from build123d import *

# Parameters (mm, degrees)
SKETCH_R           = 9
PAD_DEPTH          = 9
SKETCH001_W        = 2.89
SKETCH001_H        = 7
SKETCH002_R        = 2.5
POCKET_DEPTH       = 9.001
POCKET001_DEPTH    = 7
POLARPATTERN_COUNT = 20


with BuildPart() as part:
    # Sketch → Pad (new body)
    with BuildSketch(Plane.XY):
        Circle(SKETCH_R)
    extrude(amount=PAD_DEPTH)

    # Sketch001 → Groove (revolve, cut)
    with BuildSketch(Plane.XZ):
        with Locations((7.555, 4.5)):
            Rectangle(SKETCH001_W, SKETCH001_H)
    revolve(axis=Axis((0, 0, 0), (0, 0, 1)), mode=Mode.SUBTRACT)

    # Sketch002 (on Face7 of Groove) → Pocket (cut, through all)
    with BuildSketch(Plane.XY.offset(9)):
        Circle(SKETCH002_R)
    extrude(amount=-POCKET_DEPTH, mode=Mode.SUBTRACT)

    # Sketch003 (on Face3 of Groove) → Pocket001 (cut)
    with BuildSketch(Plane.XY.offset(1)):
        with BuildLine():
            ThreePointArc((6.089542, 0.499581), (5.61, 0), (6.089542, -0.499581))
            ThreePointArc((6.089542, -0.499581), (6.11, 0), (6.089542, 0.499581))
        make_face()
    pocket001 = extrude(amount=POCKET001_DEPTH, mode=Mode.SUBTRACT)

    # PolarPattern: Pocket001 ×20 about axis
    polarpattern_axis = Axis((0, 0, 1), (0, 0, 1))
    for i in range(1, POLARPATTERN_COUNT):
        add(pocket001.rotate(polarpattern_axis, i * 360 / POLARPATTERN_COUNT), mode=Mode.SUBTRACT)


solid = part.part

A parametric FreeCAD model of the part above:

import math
import FreeCAD as App
import Part
import Sketcher

V = App.Vector
Q = App.Units.Quantity


def add_polygon(sketch, points):
    """Adds a closed chain of lines whose ends are joined by coincident constraints."""
    first, n = sketch.GeometryCount, len(points)
    for a, b in zip(points, points[1:] + points[:1]):
        sketch.addGeometry(Part.LineSegment(App.Vector(*a, 0), App.Vector(*b, 0)), False)
    for i in range(n):
        sketch.addConstraint(Sketcher.Constraint("Coincident", first + i, 2, first + (i + 1) % n, 1))

doc = App.newDocument("Part")
body = doc.addObject("PartDesign::Body", "Body")

sketch1 = body.newObject("Sketcher::SketchObject", "Sketch")
sketch1.AttachmentSupport = (doc.getObject("XY_Plane"), [""])
sketch1.MapMode = "FlatFace"
sketch1.addGeometry(Part.Circle(V(0, 0, 0), V(0, 0, 1), 9), False)
sketch1.addConstraint(Sketcher.Constraint("Coincident", 0, 3, -1, 1))
sketch1.addConstraint(Sketcher.Constraint("Diameter", 0, Q("18 mm")))
pad1 = body.newObject("PartDesign::Pad", "Pad")
pad1.Profile = sketch1
pad1.Length = 9

sketch2 = body.newObject("Sketcher::SketchObject", "Sketch001")
sketch2.AttachmentSupport = (doc.getObject("XZ_Plane"), [""])
sketch2.MapMode = "FlatFace"
add_polygon(sketch2, [(6.11, 8), (6.11, 1), (9, 1), (9, 8)])
sketch2.addConstraint(Sketcher.Constraint("Vertical", 0))
sketch2.addConstraint(Sketcher.Constraint("Horizontal", 1))
sketch2.addConstraint(Sketcher.Constraint("Vertical", 2))
sketch2.addConstraint(Sketcher.Constraint("Horizontal", 3))
sketch2.addConstraint(Sketcher.Constraint("DistanceY", 0, 2, 0, 1, Q("7 mm")))
sketch2.addConstraint(Sketcher.Constraint("DistanceY", -1, 1, 0, 2, Q("1 mm")))
sketch2.addConstraint(Sketcher.Constraint("DistanceX", -1, 1, 1, 2, Q("9 mm")))
sketch2.addConstraint(Sketcher.Constraint("DistanceX", 1, 1, 1, 2, Q("2.89 mm")))
groove = body.newObject("PartDesign::Groove", "Groove")
groove.Profile = sketch2
groove.ReferenceAxis = (sketch2, ["V_Axis"])
groove.Angle = 360

sketch3 = body.newObject("Sketcher::SketchObject", "Sketch002")
sketch3.AttachmentSupport = (doc.getObject("XY_Plane"), [""])
sketch3.MapMode = "FlatFace"
sketch3.AttachmentOffset = App.Placement(V(0, 0, 9), App.Rotation())
sketch3.addGeometry(Part.Circle(V(0, 0, 0), V(0, 0, 1), 2.5), False)
sketch3.addConstraint(Sketcher.Constraint("Coincident", 0, 3, -1, 1))
sketch3.addConstraint(Sketcher.Constraint("Diameter", 0, Q("5 mm")))
pocket1 = body.newObject("PartDesign::Pocket", "Pocket")
pocket1.Profile = sketch3
pocket1.Type = "ThroughAll"

sketch4 = body.newObject("Sketcher::SketchObject", "Sketch003")
sketch4.AttachmentSupport = (doc.getObject("XY_Plane"), [""])
sketch4.MapMode = "FlatFace"
sketch4.AttachmentOffset = App.Placement(V(0, 0, 1), App.Rotation())
sketch4.addGeometry(Part.ArcOfCircle(Part.Circle(V(6.11, 0, 0), V(0, 0, 1), 0.5), math.radians(92.344935), math.radians(267.655065)), False)
sketch4.addGeometry(Part.ArcOfCircle(Part.Circle(V(-0.000072, 0, 0), V(0, 0, 1), 6.110072), math.radians(-4.68994), math.radians(4.68994)), False)
sketch4.addConstraint(Sketcher.Constraint("Coincident", 0, 1, 1, 2))
sketch4.addConstraint(Sketcher.Constraint("Coincident", 1, 1, 0, 2))
sketch4.addConstraint(Sketcher.Constraint("Symmetric", 0, 1, 1, 1, -1))
sketch4.addConstraint(Sketcher.Constraint("Radius", 0, Q("0.5 mm")))
sketch4.addConstraint(Sketcher.Constraint("DistanceX", -1, 1, 0, 3, Q("6.11 mm")))
sketch4.addConstraint(Sketcher.Constraint("Radius", 1, Q("6.110072 mm")))
sketch4.addConstraint(Sketcher.Constraint("DistanceX", -1, 1, 0, 1, Q("6.089542 mm")))
pocket2 = body.newObject("PartDesign::Pocket", "Pocket001")
pocket2.Profile = sketch4
pocket2.Length = 7
pocket2.Reversed = True
doc.recompute()

polarpattern = body.newObject("PartDesign::PolarPattern", "PolarPattern")
polarpattern.Originals = [pocket2]
polarpattern.Axis = (doc.getObject("Z_Axis"), [""])
polarpattern.Angle = 360
polarpattern.Occurrences = 20
body.Tip = polarpattern

doc.recompute()
